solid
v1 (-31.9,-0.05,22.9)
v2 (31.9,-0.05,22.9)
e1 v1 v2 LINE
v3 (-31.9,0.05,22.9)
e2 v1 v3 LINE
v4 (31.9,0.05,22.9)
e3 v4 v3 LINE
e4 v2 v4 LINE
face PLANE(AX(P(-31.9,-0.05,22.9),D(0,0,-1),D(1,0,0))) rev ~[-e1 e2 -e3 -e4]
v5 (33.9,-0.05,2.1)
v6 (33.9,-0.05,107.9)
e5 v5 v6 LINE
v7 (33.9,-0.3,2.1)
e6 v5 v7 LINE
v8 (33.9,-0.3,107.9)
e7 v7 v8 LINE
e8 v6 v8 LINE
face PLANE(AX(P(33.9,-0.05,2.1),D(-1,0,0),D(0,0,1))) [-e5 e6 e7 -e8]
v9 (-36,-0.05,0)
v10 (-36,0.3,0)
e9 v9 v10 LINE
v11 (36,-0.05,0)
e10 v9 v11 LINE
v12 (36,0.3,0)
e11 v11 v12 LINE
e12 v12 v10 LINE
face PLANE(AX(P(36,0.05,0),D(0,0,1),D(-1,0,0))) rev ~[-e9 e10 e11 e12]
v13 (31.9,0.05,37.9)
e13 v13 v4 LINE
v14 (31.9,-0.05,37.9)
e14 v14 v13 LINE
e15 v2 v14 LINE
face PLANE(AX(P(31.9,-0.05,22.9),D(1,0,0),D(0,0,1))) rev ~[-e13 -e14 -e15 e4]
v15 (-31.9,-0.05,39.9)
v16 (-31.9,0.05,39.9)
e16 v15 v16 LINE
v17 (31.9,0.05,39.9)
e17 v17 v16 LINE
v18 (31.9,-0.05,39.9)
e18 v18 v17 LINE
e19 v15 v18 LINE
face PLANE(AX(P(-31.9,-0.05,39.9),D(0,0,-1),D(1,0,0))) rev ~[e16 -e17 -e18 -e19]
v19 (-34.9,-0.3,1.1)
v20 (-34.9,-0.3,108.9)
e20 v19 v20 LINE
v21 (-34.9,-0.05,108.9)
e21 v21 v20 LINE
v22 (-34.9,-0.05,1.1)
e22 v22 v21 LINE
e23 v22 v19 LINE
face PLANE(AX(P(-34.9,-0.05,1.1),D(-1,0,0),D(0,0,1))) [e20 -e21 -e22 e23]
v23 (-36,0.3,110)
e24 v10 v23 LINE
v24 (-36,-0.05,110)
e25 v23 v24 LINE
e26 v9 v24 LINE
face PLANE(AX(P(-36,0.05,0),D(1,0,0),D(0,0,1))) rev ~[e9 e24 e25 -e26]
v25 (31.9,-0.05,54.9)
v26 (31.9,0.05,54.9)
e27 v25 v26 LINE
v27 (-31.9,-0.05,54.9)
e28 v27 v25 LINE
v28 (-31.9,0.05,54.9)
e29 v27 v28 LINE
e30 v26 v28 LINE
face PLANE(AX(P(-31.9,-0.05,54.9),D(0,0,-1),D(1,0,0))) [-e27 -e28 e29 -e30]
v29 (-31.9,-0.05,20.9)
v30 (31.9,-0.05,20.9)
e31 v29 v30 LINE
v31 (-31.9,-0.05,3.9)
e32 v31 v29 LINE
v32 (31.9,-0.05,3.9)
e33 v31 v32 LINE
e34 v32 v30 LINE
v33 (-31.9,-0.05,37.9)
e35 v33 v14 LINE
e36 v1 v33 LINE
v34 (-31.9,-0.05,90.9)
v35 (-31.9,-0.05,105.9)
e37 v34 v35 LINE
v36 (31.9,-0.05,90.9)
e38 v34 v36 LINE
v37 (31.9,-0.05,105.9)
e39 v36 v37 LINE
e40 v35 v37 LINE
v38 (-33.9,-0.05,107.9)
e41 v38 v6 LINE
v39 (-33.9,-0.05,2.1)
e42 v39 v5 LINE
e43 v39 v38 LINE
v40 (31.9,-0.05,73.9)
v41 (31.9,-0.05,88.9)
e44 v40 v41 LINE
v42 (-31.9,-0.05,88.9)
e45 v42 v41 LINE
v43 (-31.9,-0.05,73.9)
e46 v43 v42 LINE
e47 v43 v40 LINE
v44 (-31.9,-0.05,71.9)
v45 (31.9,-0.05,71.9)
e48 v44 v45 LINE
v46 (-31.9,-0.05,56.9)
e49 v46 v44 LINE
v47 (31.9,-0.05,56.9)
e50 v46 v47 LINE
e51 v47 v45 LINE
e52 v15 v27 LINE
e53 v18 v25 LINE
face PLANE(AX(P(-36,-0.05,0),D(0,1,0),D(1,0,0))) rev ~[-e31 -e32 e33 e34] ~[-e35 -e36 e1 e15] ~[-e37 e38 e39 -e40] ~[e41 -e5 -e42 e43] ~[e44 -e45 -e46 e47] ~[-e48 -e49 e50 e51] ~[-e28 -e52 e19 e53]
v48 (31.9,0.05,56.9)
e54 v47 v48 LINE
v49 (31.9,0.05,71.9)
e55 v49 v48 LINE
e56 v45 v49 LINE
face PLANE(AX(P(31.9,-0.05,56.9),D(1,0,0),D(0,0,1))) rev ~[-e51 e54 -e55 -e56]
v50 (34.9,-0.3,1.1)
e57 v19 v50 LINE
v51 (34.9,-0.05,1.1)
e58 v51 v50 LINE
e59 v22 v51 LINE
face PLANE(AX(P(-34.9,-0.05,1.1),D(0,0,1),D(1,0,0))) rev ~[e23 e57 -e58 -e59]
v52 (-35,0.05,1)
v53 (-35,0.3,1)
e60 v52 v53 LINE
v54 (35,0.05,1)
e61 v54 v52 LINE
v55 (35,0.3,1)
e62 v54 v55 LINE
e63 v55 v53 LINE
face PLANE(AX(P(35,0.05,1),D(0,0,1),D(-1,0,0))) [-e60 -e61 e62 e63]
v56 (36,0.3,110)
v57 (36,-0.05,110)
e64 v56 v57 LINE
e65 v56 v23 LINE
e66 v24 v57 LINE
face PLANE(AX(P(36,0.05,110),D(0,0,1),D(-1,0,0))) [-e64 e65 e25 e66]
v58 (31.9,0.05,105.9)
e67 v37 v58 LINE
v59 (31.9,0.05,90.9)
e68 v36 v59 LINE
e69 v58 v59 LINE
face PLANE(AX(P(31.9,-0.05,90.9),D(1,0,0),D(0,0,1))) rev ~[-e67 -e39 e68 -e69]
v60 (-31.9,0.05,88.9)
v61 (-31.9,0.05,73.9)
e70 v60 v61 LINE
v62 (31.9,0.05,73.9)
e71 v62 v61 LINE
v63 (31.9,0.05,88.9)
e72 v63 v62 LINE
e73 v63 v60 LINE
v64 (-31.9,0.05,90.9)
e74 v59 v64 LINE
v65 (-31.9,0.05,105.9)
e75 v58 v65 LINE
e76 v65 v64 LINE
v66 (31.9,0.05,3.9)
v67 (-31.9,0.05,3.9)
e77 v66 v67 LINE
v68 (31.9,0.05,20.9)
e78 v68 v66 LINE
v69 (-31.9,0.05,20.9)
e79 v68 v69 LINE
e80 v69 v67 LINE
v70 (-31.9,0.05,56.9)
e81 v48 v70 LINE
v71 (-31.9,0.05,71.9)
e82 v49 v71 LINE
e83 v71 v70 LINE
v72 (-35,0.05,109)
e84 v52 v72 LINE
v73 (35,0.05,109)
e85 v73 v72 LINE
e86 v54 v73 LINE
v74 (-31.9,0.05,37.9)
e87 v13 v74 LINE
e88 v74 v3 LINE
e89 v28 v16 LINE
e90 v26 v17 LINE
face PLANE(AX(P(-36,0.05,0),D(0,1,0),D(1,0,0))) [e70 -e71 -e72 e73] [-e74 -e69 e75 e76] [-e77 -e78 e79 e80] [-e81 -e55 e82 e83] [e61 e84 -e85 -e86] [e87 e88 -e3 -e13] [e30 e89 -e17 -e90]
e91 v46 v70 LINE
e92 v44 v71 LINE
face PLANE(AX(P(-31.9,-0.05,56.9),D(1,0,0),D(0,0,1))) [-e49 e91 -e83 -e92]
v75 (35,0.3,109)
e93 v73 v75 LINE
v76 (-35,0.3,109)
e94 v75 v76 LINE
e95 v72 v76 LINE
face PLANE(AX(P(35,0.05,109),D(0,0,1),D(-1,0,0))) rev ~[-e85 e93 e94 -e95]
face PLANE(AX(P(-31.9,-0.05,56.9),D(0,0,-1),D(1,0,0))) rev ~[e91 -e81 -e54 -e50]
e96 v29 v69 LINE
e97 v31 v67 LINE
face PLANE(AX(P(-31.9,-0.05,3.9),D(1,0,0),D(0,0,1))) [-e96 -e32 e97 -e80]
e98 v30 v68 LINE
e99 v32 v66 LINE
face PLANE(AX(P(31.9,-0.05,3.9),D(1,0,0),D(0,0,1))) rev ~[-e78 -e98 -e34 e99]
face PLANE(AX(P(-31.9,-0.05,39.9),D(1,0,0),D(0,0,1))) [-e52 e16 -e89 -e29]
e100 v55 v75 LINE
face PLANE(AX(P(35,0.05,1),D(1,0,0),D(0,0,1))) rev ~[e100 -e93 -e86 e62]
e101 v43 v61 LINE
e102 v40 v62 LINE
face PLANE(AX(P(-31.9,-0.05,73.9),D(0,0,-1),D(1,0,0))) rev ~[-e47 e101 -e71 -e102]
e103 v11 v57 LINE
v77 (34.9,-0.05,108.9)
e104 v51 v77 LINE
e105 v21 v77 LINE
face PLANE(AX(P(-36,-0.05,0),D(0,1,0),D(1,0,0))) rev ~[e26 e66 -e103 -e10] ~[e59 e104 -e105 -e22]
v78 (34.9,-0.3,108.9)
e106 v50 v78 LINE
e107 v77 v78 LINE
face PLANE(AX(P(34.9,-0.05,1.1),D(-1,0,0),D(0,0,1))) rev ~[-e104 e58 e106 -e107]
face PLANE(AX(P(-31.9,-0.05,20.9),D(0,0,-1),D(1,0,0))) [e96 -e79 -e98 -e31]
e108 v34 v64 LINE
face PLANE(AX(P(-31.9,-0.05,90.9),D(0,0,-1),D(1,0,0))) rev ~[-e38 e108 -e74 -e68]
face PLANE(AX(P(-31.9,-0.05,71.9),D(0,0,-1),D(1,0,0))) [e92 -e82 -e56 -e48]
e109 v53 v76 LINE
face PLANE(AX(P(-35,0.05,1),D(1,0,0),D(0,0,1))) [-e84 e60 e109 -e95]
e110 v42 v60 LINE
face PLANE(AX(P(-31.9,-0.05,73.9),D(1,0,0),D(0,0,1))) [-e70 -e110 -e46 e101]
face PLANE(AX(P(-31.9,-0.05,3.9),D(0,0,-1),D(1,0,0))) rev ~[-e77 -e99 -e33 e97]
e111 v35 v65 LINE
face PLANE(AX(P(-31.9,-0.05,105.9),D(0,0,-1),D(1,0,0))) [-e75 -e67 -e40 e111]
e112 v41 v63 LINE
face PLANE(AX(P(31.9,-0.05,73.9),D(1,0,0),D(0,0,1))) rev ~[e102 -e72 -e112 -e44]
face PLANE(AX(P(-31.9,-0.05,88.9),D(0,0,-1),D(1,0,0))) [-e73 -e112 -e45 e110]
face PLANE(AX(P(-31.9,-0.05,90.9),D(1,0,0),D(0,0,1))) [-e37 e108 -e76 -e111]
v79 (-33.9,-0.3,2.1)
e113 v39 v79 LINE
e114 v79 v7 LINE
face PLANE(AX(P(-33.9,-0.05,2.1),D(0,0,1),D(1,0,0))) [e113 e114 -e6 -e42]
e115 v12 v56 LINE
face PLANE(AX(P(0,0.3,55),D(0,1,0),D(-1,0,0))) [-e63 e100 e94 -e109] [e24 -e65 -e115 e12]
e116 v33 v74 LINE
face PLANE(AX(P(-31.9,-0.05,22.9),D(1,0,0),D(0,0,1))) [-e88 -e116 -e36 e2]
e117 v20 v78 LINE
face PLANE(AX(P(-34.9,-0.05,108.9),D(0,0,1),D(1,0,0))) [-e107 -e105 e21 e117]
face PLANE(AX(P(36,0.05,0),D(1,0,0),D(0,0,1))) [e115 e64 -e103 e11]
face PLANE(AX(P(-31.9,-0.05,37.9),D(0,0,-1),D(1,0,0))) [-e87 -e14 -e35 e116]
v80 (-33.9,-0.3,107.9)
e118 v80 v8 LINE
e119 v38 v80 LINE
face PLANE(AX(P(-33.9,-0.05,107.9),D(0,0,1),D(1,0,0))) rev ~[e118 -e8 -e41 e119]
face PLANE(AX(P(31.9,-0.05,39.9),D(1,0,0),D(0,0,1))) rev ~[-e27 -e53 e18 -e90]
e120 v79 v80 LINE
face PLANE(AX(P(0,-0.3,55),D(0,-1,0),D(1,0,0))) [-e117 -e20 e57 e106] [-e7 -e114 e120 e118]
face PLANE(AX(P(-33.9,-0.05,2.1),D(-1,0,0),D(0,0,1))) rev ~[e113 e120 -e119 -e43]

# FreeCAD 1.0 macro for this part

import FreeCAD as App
import Part
import Sketcher

V = App.Vector
Q = App.Units.Quantity


def add_polygon(sketch, points):
    """Adds a closed chain of lines whose ends are joined by coincident constraints."""
    first, n = sketch.GeometryCount, len(points)
    for a, b in zip(points, points[1:] + points[:1]):
        sketch.addGeometry(Part.LineSegment(App.Vector(*a, 0), App.Vector(*b, 0)), False)
    for i in range(n):
        sketch.addConstraint(Sketcher.Constraint("Coincident", first + i, 2, first + (i + 1) % n, 1))

doc = App.newDocument("Part")
body = doc.addObject("PartDesign::Body", "Body")

sketch1 = doc.addObject("Sketcher::SketchObject", "Sketch")
body.addObject(sketch1)
sketch1.AttachmentSupport = (doc.XY_Plane, [""])
sketch1.MapMode = "FlatFace"
add_polygon(sketch1, [(-36, 0.05), (-36, -0.05), (36, -0.05), (36, 0.05)])
sketch1.addConstraint([
    Sketcher.Constraint("Vertical", 0),
    Sketcher.Constraint("Horizontal", 1),
    Sketcher.Constraint("Vertical", 2),
    Sketcher.Constraint("Horizontal", 3),
    Sketcher.Constraint("Symmetric", 0, 2, 2, 2, -1, 1),
    Sketcher.Constraint("DistanceX", 1, 1, 1, 2, Q("72 mm")),
    Sketcher.Constraint("DistanceY", 0, 2, 0, 1, Q("0.1 mm")),
])
pad1 = doc.addObject("PartDesign::Pad", "Pad")
body.addObject(pad1)
pad1.Profile = sketch1
pad1.Length = 110

sketch2 = doc.addObject("Sketcher::SketchObject", "Sketch001")
body.addObject(sketch2)
sketch2.AttachmentSupport = (doc.XZ_Plane, [""])
sketch2.MapMode = "FlatFace"
sketch2.AttachmentOffset = App.Placement(V(0, 0, 0.05), App.Rotation())
add_polygon(sketch2, [(-35, 109), (-35, 1), (35, 1), (35, 109)])
add_polygon(sketch2, [(34, 2), (-34, 2), (-34, 108), (34, 108)])
sketch2.addConstraint([
    Sketcher.Constraint("Vertical", 0),
    Sketcher.Constraint("Horizontal", 1),
    Sketcher.Constraint("Vertical", 2),
    Sketcher.Constraint("Horizontal", 3),
    Sketcher.Constraint("Horizontal", 4),
    Sketcher.Constraint("Vertical", 5),
    Sketcher.Constraint("Horizontal", 6),
    Sketcher.Constraint("Vertical", 7),
    Sketcher.Constraint("DistanceX", 1, 1, 1, 2, Q("69.8 mm")),
    Sketcher.Constraint("DistanceX", 4, 2, 4, 1, Q("67.8 mm")),
    Sketcher.Constraint("DistanceY", 0, 2, 0, 1, Q("107.8 mm")),
    Sketcher.Constraint("DistanceY", 5, 1, 5, 2, Q("105.8 mm")),
    Sketcher.Constraint("DistanceX", 0, 2, 4, 2, Q("1 mm")),
    Sketcher.Constraint("DistanceY", 0, 2, 4, 2, Q("1 mm")),
    Sketcher.Constraint("DistanceX", 0, 2, -1, 1, Q("34.9 mm")),
    Sketcher.Constraint("DistanceY", -1, 1, 0, 2, Q("1.1 mm")),
])
pad2 = doc.addObject("PartDesign::Pad", "Pad001")
body.addObject(pad2)
pad2.Profile = sketch2
pad2.Length = 0.25

sketch3 = doc.addObject("Sketcher::SketchObject", "Sketch002")
body.addObject(sketch3)
sketch3.AttachmentSupport = (doc.XZ_Plane, [""])
sketch3.MapMode = "FlatFace"
sketch3.AttachmentOffset = App.Placement(V(0, 0, -0.05), App.Rotation())
add_polygon(sketch3, [(36, 110), (36, 0), (-36, 0), (-36, 110)])
add_polygon(sketch3, [(-35, 1), (35, 1), (35, 109), (-35, 109)])
sketch3.addConstraint([
    Sketcher.Constraint("Vertical", 0),
    Sketcher.Constraint("Horizontal", 1),
    Sketcher.Constraint("Vertical", 2),
    Sketcher.Constraint("Horizontal", 3),
    Sketcher.Constraint("Horizontal", 4),
    Sketcher.Constraint("Vertical", 5),
    Sketcher.Constraint("Horizontal", 6),
    Sketcher.Constraint("Vertical", 7),
    Sketcher.Constraint("Symmetric", 0, 2, 1, 2, -1, 1),
    Sketcher.Constraint("DistanceX", 1, 2, 1, 1, Q("72 mm")),
    Sketcher.Constraint("DistanceX", 4, 1, 4, 2, Q("70 mm")),
    Sketcher.Constraint("DistanceY", 0, 2, 0, 1, Q("110 mm")),
    Sketcher.Constraint("DistanceY", 5, 1, 5, 2, Q("108 mm")),
    Sketcher.Constraint("DistanceX", -1, 1, 4, 2, Q("35 mm")),
    Sketcher.Constraint("DistanceY", -1, 1, 4, 2, Q("1 mm")),
])
pad3 = doc.addObject("PartDesign::Pad", "Pad002")
body.addObject(pad3)
pad3.Profile = sketch3
pad3.Length = 0.25
pad3.Reversed = True

sketch4 = doc.addObject("Sketcher::SketchObject", "Sketch003")
body.addObject(sketch4)
sketch4.AttachmentSupport = (doc.XZ_Plane, [""])
sketch4.MapMode = "FlatFace"
sketch4.AttachmentOffset = App.Placement(V(0, 0, 0.05), App.Rotation())
add_polygon(sketch4, [(-32, 106), (-32, 91), (32, 91), (32, 106)])
add_polygon(sketch4, [(-32, 89), (-32, 74), (32, 74), (32, 89)])
add_polygon(sketch4, [(-32, 72), (-32, 57), (32, 57), (32, 72)])
add_polygon(sketch4, [(-32, 55), (-32, 40), (32, 40), (32, 55)])
add_polygon(sketch4, [(-32, 38), (-32, 23), (32, 23), (32, 38)])
add_polygon(sketch4, [(-32, 21), (-32, 4), (32, 4), (32, 21)])
sketch4.addConstraint([
    Sketcher.Constraint("Vertical", 0),
    Sketcher.Constraint("Horizontal", 1),
    Sketcher.Constraint("Vertical", 2),
    Sketcher.Constraint("Horizontal", 3),
    Sketcher.Constraint("Vertical", 4),
    Sketcher.Constraint("Horizontal", 5),
    Sketcher.Constraint("Vertical", 6),
    Sketcher.Constraint("Horizontal", 7),
    Sketcher.Constraint("Vertical", 8),
    Sketcher.Constraint("Horizontal", 9),
    Sketcher.Constraint("Vertical", 10),
    Sketcher.Constraint("Horizontal", 11),
    Sketcher.Constraint("Vertical", 12),
    Sketcher.Constraint("Horizontal", 13),
    Sketcher.Constraint("Vertical", 14),
    Sketcher.Constraint("Horizontal", 15),
    Sketcher.Constraint("Vertical", 16),
    Sketcher.Constraint("Horizontal", 17),
    Sketcher.Constraint("Vertical", 18),
    Sketcher.Constraint("Horizontal", 19),
    Sketcher.Constraint("Vertical", 20),
    Sketcher.Constraint("Horizontal", 21),
    Sketcher.Constraint("Vertical", 22),
    Sketcher.Constraint("Horizontal", 23),
    Sketcher.Constraint("Vertical", 3, 2, 4, 2),
    Sketcher.Constraint("Vertical", 2, 2, 5, 2),
    Sketcher.Constraint("Vertical", 7, 2, 8, 2),
    Sketcher.Constraint("Vertical", 6, 2, 9, 2),
    Sketcher.Constraint("Vertical", 11, 2, 12, 2),
    Sketcher.Constraint("Vertical", 10, 2, 13, 2),
    Sketcher.Constraint("Vertical", 15, 2, 16, 2),
    Sketcher.Constraint("Vertical", 14, 2, 17, 2),
    Sketcher.Constraint("Vertical", 19, 2, 20, 2),
    Sketcher.Constraint("Vertical", 18, 2, 21, 2),
    Sketcher.Constraint("Equal", 2, 4),
    Sketcher.Constraint("Equal", 6, 8),
    Sketcher.Constraint("Equal", 10, 12),
    Sketcher.Constraint("Equal", 14, 16),
    Sketcher.Constraint("DistanceY", 0, 2, 0, 1, Q("15 mm")),
    Sketcher.Constraint("DistanceY", 20, 2, 20, 1, Q("17 mm")),
    Sketcher.Constraint("DistanceX", 1, 1, 1, 2, Q("63.8 mm")),
    Sketcher.Constraint("DistanceY", 4, 2, 0, 2, Q("17 mm")),
    Sketcher.Constraint("DistanceY", 8, 2, 4, 2, Q("17 mm")),
    Sketcher.Constraint("DistanceY", 12, 2, 8, 2, Q("17 mm")),
    Sketcher.Constraint("DistanceY", 16, 2, 12, 2, Q("17 mm")),
    Sketcher.Constraint("DistanceY", 20, 2, 16, 2, Q("19 mm")),
    Sketcher.Constraint("DistanceX", 0, 2, -1, 1, Q("31.9 mm")),
    Sketcher.Constraint("DistanceY", -1, 1, 0, 2, Q("90.9 mm")),
])
pocket1 = doc.addObject("PartDesign::Pocket", "Pocket")
body.addObject(pocket1)
pocket1.Profile = sketch4
pocket1.Length = 2

doc.recompute()
